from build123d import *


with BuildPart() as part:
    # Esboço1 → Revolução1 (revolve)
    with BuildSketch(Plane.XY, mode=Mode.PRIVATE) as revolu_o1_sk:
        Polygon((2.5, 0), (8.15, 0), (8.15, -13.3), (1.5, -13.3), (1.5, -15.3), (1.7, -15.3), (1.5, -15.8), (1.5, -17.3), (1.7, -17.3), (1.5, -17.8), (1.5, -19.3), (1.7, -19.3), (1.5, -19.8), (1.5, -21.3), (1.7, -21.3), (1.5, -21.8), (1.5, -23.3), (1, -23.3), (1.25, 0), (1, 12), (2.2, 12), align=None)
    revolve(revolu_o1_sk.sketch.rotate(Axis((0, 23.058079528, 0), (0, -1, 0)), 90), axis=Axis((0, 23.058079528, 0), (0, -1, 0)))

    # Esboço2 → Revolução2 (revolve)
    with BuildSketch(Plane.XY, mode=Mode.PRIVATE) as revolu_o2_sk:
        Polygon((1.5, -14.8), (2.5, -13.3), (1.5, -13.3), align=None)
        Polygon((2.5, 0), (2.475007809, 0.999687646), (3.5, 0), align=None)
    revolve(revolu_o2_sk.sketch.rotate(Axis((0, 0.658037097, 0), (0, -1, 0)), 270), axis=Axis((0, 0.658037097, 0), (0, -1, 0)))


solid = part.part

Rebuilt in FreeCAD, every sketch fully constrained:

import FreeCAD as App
import Part
import Sketcher
Q = App.Units.Quantity

doc = App.newDocument("Part")
body = doc.addObject("PartDesign::Body", "Body")

# Sketch on XY plane
sketch1 = body.newObject("Sketcher::SketchObject", "Sketch")
sketch1.AttachmentSupport = (doc.getObject("XY_Plane"), [""])
sketch1.MapMode = "FlatFace"
sketch1.addGeometry(Part.LineSegment(App.Vector(8.15, 0, 0), App.Vector(2.5, 0, 0)), False)
sketch1.addGeometry(Part.LineSegment(App.Vector(2.5, 0, 0), App.Vector(2.2, 12, 0)), False)
sketch1.addGeometry(Part.LineSegment(App.Vector(2.2, 12, 0), App.Vector(1, 12, 0)), False)
sketch1.addGeometry(Part.LineSegment(App.Vector(1, 12, 0), App.Vector(1.25, 0, 0)), False)
sketch1.addGeometry(Part.LineSegment(App.Vector(1.25, 0, 0), App.Vector(1, -23.3, 0)), False)
sketch1.addGeometry(Part.LineSegment(App.Vector(1, -23.3, 0), App.Vector(1.5, -23.3, 0)), False)
sketch1.addGeometry(Part.LineSegment(App.Vector(1.5, -23.3, 0), App.Vector(1.5, -21.8, 0)), False)
sketch1.addGeometry(Part.LineSegment(App.Vector(1.5, -21.8, 0), App.Vector(1.7, -21.3, 0)), False)
sketch1.addGeometry(Part.LineSegment(App.Vector(1.7, -21.3, 0), App.Vector(1.5, -21.3, 0)), False)
sketch1.addGeometry(Part.LineSegment(App.Vector(1.5, -21.3, 0), App.Vector(1.5, -19.8, 0)), False)
sketch1.addGeometry(Part.LineSegment(App.Vector(1.5, -19.8, 0), App.Vector(1.7, -19.3, 0)), False)
sketch1.addGeometry(Part.LineSegment(App.Vector(1.7, -19.3, 0), App.Vector(1.5, -19.3, 0)), False)
sketch1.addGeometry(Part.LineSegment(App.Vector(1.5, -19.3, 0), App.Vector(1.5, -17.8, 0)), False)
sketch1.addGeometry(Part.LineSegment(App.Vector(1.5, -17.8, 0), App.Vector(1.7, -17.3, 0)), False)
sketch1.addGeometry(Part.LineSegment(App.Vector(1.7, -17.3, 0), App.Vector(1.5, -17.3, 0)), False)
sketch1.addGeometry(Part.LineSegment(App.Vector(1.5, -17.3, 0), App.Vector(1.5, -15.8, 0)), False)
sketch1.addGeometry(Part.LineSegment(App.Vector(1.5, -15.8, 0), App.Vector(1.7, -15.3, 0)), False)
sketch1.addGeometry(Part.LineSegment(App.Vector(1.7, -15.3, 0), App.Vector(1.5, -15.3, 0)), False)
sketch1.addGeometry(Part.LineSegment(App.Vector(1.5, -15.3, 0), App.Vector(1.5, -13.3, 0)), False)
sketch1.addGeometry(Part.LineSegment(App.Vector(1.5, -13.3, 0), App.Vector(8.15, -13.3, 0)), False)
sketch1.addGeometry(Part.LineSegment(App.Vector(8.15, -13.3, 0), App.Vector(8.15, 0, 0)), False)
sketch1.addConstraint(Sketcher.Constraint("Coincident", 0, 2, 1, 1))
sketch1.addConstraint(Sketcher.Constraint("Coincident", 1, 2, 2, 1))
sketch1.addConstraint(Sketcher.Constraint("Coincident", 2, 2, 3, 1))
sketch1.addConstraint(Sketcher.Constraint("Coincident", 3, 2, 4, 1))
sketch1.addConstraint(Sketcher.Constraint("Coincident", 4, 2, 5, 1))
sketch1.addConstraint(Sketcher.Constraint("Coincident", 5, 2, 6, 1))
sketch1.addConstraint(Sketcher.Constraint("Coincident", 6, 2, 7, 1))
sketch1.addConstraint(Sketcher.Constraint("Coincident", 7, 2, 8, 1))
sketch1.addConstraint(Sketcher.Constraint("Coincident", 8, 2, 9, 1))
sketch1.addConstraint(Sketcher.Constraint("Coincident", 9, 2, 10, 1))
sketch1.addConstraint(Sketcher.Constraint("Coincident", 10, 2, 11, 1))
sketch1.addConstraint(Sketcher.Constraint("Coincident", 11, 2, 12, 1))
sketch1.addConstraint(Sketcher.Constraint("Coincident", 12, 2, 13, 1))
sketch1.addConstraint(Sketcher.Constraint("Coincident", 13, 2, 14, 1))
sketch1.addConstraint(Sketcher.Constraint("Coincident", 14, 2, 15, 1))
sketch1.addConstraint(Sketcher.Constraint("Coincident", 15, 2, 16, 1))
sketch1.addConstraint(Sketcher.Constraint("Coincident", 16, 2, 17, 1))
sketch1.addConstraint(Sketcher.Constraint("Coincident", 17, 2, 18, 1))
sketch1.addConstraint(Sketcher.Constraint("Coincident", 18, 2, 19, 1))
sketch1.addConstraint(Sketcher.Constraint("Coincident", 19, 2, 20, 1))
sketch1.addConstraint(Sketcher.Constraint("Coincident", 20, 2, 0, 1))
sketch1.addConstraint(Sketcher.Constraint("Horizontal", 0))
sketch1.addConstraint(Sketcher.Constraint("Horizontal", 2))
sketch1.addConstraint(Sketcher.Constraint("Horizontal", 5))
sketch1.addConstraint(Sketcher.Constraint("Vertical", 6))
sketch1.addConstraint(Sketcher.Constraint("Horizontal", 8))
sketch1.addConstraint(Sketcher.Constraint("Vertical", 9))
sketch1.addConstraint(Sketcher.Constraint("Horizontal", 11))
sketch1.addConstraint(Sketcher.Constraint("Vertical", 12))
sketch1.addConstraint(Sketcher.Constraint("Horizontal", 14))
sketch1.addConstraint(Sketcher.Constraint("Vertical", 15))
sketch1.addConstraint(Sketcher.Constraint("Horizontal", 17))
sketch1.addConstraint(Sketcher.Constraint("Vertical", 18))
sketch1.addConstraint(Sketcher.Constraint("Horizontal", 19))
sketch1.addConstraint(Sketcher.Constraint("Vertical", 20))
sketch1.addConstraint(Sketcher.Constraint("PointOnObject", 0, 2, -1))
sketch1.addConstraint(Sketcher.Constraint("PointOnObject", 3, 2, -1))
sketch1.addConstraint(Sketcher.Constraint("Parallel", 7, 10))
sketch1.addConstraint(Sketcher.Constraint("Parallel", 10, 13))
sketch1.addConstraint(Sketcher.Constraint("Parallel", 13, 16))
sketch1.addConstraint(Sketcher.Constraint("Vertical", 2, 2, 4, 2))
sketch1.addConstraint(Sketcher.Constraint("Vertical", 6, 2, 8, 2))
sketch1.addConstraint(Sketcher.Constraint("Vertical", 7, 2, 10, 2))
sketch1.addConstraint(Sketcher.Constraint("Vertical", 9, 2, 11, 2))
sketch1.addConstraint(Sketcher.Constraint("Vertical", 10, 2, 13, 2))
sketch1.addConstraint(Sketcher.Constraint("Vertical", 12, 2, 14, 2))
sketch1.addConstraint(Sketcher.Constraint("Vertical", 13, 2, 16, 2))
sketch1.addConstraint(Sketcher.Constraint("Vertical", 15, 2, 17, 2))
sketch1.addConstraint(Sketcher.Constraint("Equal", 6, 9))
sketch1.addConstraint(Sketcher.Constraint("Equal", 9, 12))
sketch1.addConstraint(Sketcher.Constraint("Equal", 12, 15))
sketch1.addConstraint(Sketcher.Constraint("DistanceY", 18, 1, 18, 2, Q("2 mm")))
sketch1.addConstraint(Sketcher.Constraint("DistanceX", 2, 2, 2, 1, Q("1.2 mm")))
sketch1.addConstraint(Sketcher.Constraint("DistanceX", 5, 1, 5, 2, Q("0.5 mm")))
sketch1.addConstraint(Sketcher.Constraint("DistanceX", 8, 2, 8, 1, Q("0.2 mm")))
sketch1.addConstraint(Sketcher.Constraint("DistanceY", 6, 1, 6, 2, Q("1.5 mm")))
sketch1.addConstraint(Sketcher.Constraint("DistanceY", 20, 1, 20, 2, Q("13.3 mm")))
sketch1.addConstraint(Sketcher.Constraint("DistanceY", -1, 1, 1, 2, Q("12 mm")))
sketch1.addConstraint(Sketcher.Constraint("DistanceX", -1, 1, 2, 2, Q("1 mm")))
sketch1.addConstraint(Sketcher.Constraint("DistanceX", 5, 2, 0, 2, Q("1 mm")))
sketch1.addConstraint(Sketcher.Constraint("DistanceY", 5, 2, 7, 2, Q("2 mm")))
sketch1.addConstraint(Sketcher.Constraint("DistanceX", 0, 2, 0, 1, Q("5.65 mm")))
sketch1.addConstraint(Sketcher.Constraint("DistanceX", 3, 2, 20, 2, Q("6.9 mm")))
revolution = body.newObject("PartDesign::Revolution", "Revolution")
revolution.Profile = sketch1
revolution.ReferenceAxis = (sketch1, ["V_Axis"])
revolution.Angle = 360

# Sketch on XY plane
sketch2 = body.newObject("Sketcher::SketchObject", "Sketch001")
sketch2.AttachmentSupport = (doc.getObject("XY_Plane"), [""])
sketch2.MapMode = "FlatFace"
sketch2.addGeometry(Part.LineSegment(App.Vector(1.5, -14.8, 0), App.Vector(2.5, -13.3, 0)), False)
sketch2.addGeometry(Part.LineSegment(App.Vector(2.5, -13.3, 0), App.Vector(1.5, -13.3, 0)), False)
sketch2.addGeometry(Part.LineSegment(App.Vector(1.5, -13.3, 0), App.Vector(1.5, -14.8, 0)), False)
sketch2.addGeometry(Part.LineSegment(App.Vector(2.475008, 0.999688, 0), App.Vector(2.5, 0, 0)), False)
sketch2.addGeometry(Part.LineSegment(App.Vector(2.5, 0, 0), App.Vector(3.5, 0, 0)), False)
sketch2.addGeometry(Part.LineSegment(App.Vector(3.5, 0, 0), App.Vector(2.475008, 0.999688, 0)), False)
sketch2.addConstraint(Sketcher.Constraint("Coincident", 0, 2, 1, 1))
sketch2.addConstraint(Sketcher.Constraint("Coincident", 1, 2, 2, 1))
sketch2.addConstraint(Sketcher.Constraint("Coincident", 2, 2, 0, 1))
sketch2.addConstraint(Sketcher.Constraint("Coincident", 3, 2, 4, 1))
sketch2.addConstraint(Sketcher.Constraint("Coincident", 4, 2, 5, 1))
sketch2.addConstraint(Sketcher.Constraint("Coincident", 5, 2, 3, 1))
sketch2.addConstraint(Sketcher.Constraint("Horizontal", 1))
sketch2.addConstraint(Sketcher.Constraint("Vertical", 2))
sketch2.addConstraint(Sketcher.Constraint("Horizontal", 4))
sketch2.addConstraint(Sketcher.Constraint("PointOnObject", 3, 2, -1))
sketch2.addConstraint(Sketcher.Constraint("Vertical", 0, 2, 3, 2))
sketch2.addConstraint(Sketcher.Constraint("Equal", 1, 4))
sketch2.addConstraint(Sketcher.Constraint("DistanceX", 1, 2, 1, 1, Q("1 mm")))
sketch2.addConstraint(Sketcher.Constraint("Distance", 3, Q("1 mm")))
sketch2.addConstraint(Sketcher.Constraint("DistanceY", 2, 2, 2, 1, Q("1.5 mm")))
sketch2.addConstraint(Sketcher.Constraint("DistanceX", -1, 1, 0, 2, Q("2.5 mm")))
sketch2.addConstraint(Sketcher.Constraint("DistanceY", 0, 2, -1, 1, Q("13.3 mm")))
sketch2.addConstraint(Sketcher.Constraint("Distance", 5, Q("1.431777 mm")))
revolution2 = body.newObject("PartDesign::Revolution", "Revolution001")
revolution2.Profile = sketch2
revolution2.ReferenceAxis = (sketch2, ["V_Axis"])
revolution2.Angle = 360

doc.recompute()
